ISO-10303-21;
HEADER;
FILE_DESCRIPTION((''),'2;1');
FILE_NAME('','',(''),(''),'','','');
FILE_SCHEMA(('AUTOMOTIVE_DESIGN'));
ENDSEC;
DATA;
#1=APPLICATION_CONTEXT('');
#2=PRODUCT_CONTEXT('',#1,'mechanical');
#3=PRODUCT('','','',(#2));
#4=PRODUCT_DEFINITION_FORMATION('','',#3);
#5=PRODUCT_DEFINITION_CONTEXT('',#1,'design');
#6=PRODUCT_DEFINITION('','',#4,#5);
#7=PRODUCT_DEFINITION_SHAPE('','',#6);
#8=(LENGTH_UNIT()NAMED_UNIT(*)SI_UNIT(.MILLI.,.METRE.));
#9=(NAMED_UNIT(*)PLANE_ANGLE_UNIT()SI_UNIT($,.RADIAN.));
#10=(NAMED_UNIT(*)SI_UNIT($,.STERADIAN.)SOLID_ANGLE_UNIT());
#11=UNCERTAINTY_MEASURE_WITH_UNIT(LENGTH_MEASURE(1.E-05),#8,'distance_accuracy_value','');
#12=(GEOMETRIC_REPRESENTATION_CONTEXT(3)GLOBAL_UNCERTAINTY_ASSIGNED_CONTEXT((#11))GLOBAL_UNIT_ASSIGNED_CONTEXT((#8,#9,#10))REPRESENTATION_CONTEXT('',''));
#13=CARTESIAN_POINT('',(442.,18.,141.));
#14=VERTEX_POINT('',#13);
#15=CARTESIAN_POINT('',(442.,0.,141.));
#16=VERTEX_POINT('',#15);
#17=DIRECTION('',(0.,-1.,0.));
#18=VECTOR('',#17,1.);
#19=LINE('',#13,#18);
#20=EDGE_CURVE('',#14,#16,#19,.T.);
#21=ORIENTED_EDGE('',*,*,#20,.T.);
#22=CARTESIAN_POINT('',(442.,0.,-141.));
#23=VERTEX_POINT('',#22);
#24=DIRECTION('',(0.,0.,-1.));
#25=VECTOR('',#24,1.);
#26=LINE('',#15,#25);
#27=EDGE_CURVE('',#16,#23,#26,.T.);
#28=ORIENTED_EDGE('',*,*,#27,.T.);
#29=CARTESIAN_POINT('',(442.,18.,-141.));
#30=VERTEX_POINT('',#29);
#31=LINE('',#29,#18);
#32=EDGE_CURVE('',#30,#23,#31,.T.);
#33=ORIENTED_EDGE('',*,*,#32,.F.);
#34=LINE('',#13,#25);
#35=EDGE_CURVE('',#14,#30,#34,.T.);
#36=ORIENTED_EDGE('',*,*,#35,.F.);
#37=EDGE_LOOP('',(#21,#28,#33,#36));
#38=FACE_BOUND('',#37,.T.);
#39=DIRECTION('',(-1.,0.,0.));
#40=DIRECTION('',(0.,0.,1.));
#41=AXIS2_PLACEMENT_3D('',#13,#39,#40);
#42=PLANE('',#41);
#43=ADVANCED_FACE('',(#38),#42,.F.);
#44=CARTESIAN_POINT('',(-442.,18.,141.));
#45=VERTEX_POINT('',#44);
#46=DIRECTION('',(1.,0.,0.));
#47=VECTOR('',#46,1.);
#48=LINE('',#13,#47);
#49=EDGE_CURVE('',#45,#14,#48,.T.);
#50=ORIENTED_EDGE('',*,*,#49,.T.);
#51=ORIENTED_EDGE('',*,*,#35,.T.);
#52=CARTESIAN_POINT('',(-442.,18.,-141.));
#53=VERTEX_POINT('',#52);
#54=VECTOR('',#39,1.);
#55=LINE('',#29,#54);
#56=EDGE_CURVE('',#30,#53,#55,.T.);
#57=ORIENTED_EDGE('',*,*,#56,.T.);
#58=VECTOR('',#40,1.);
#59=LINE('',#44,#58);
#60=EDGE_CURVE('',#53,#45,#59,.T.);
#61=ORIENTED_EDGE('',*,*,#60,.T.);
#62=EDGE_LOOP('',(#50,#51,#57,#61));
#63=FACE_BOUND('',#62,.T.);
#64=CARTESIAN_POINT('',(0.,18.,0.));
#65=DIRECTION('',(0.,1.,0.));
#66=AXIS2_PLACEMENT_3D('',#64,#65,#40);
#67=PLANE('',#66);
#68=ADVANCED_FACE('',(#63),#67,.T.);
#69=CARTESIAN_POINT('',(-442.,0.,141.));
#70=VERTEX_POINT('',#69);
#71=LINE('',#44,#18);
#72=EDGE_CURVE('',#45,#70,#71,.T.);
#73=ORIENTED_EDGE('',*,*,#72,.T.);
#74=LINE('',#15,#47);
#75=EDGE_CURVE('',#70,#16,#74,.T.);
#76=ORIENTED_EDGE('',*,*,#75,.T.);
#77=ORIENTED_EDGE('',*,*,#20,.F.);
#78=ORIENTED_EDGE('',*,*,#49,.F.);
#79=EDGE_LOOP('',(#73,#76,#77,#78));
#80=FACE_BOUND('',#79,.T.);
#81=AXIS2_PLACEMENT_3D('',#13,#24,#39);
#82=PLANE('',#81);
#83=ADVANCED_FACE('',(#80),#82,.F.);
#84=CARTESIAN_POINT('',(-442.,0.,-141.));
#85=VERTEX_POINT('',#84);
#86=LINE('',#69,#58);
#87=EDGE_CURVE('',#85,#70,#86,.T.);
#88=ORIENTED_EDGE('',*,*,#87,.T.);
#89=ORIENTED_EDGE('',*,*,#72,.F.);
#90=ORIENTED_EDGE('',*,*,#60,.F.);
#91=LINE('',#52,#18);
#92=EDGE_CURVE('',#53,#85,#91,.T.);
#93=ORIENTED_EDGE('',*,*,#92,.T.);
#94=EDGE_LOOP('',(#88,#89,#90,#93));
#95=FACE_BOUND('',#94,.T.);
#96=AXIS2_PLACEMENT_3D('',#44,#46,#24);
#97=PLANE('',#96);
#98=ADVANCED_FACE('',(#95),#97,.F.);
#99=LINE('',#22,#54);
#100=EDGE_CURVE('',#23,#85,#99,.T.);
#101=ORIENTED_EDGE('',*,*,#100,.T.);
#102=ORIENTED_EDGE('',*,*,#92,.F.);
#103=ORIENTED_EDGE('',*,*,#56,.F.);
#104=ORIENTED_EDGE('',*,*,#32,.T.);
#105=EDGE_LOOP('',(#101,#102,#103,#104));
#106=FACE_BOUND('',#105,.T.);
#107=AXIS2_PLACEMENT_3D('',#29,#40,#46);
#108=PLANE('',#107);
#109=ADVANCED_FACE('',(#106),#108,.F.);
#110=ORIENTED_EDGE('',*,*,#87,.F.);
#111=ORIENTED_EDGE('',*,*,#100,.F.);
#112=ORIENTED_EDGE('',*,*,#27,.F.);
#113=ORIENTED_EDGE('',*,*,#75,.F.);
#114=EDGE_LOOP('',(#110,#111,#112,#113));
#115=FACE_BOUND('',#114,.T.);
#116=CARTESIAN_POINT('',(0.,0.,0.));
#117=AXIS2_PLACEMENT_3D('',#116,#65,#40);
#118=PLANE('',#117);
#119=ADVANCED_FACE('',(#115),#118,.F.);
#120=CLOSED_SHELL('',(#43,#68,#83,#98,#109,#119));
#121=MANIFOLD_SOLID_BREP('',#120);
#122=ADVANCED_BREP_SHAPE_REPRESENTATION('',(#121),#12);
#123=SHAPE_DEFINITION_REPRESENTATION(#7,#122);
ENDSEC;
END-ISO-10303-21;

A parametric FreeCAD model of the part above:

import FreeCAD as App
import Part
import Sketcher
from FreeCAD import Vector


def add_polygon(sketch, points):
    """Adds a closed chain of lines whose ends are joined by coincident constraints."""
    first, n = sketch.GeometryCount, len(points)
    for a, b in zip(points, points[1:] + points[:1]):
        sketch.addGeometry(Part.LineSegment(App.Vector(*a, 0), App.Vector(*b, 0)), False)
    for i in range(n):
        sketch.addConstraint(Sketcher.Constraint("Coincident", first + i, 2, first + (i + 1) % n, 1))

doc = App.newDocument("Part")
params = doc.addObject("Spreadsheet::Sheet", "Params")
for row, (alias, value) in enumerate([
    ("sketch1_width", "884 mm"),
    ("sketch1_height", "282 mm"),
    ("pad1_length", "18 mm"),
], start=1):
    params.set(f"A{row}", alias)
    params.set(f"B{row}", "=" + value)
    params.setAlias(f"B{row}", alias)

body = doc.addObject("PartDesign::Body", "Body")

# Sketch on XZ plane
sketch1 = body.newObject("Sketcher::SketchObject", "Sketch")
sketch1.AttachmentSupport = (doc.getObject("XZ_Plane"), [""])
sketch1.MapMode = "FlatFace"
add_polygon(sketch1, [(-442, -141), (-442, 141), (442, 141), (442, -141)])  # lines 0-3
sketch1.addConstraint([
    Sketcher.Constraint("Vertical", 0),
    Sketcher.Constraint("Horizontal", 1),
    Sketcher.Constraint("Vertical", 2),
    Sketcher.Constraint("Horizontal", 3),
    Sketcher.Constraint("Symmetric", 0, 2, 2, 2, -1, 1),
    Sketcher.Constraint("DistanceX", 1, 1, 1, 2, 884.0),
    Sketcher.Constraint("DistanceY", 0, 1, 0, 2, 282.0),
])
sketch1.setExpression("Constraints[9]", "Params.sketch1_width")
sketch1.setExpression("Constraints[10]", "Params.sketch1_height")
pad1 = body.newObject("PartDesign::Pad", "Pad")
pad1.Profile = sketch1
pad1.setExpression("Length", "Params.pad1_length")
pad1.Reversed = True

doc.recompute()
